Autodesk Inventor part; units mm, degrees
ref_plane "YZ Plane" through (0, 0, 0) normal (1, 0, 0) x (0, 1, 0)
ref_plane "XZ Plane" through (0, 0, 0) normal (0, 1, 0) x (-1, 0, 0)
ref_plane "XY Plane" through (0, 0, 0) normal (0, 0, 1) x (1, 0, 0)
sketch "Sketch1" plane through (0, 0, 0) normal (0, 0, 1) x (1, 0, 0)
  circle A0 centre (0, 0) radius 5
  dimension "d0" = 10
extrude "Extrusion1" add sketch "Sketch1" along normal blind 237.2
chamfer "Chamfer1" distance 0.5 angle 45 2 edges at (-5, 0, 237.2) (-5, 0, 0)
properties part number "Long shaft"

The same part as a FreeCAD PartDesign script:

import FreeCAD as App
import Part
import Sketcher


def edges_at(feature, points):
    """Names of the edges that pass closest to the given points."""
    edges = feature.Shape.Edges
    near = lambda p: min(range(len(edges)), key=lambda i: edges[i].distToShape(Part.Vertex(*p))[0])
    return sorted({f"Edge{near(p) + 1}" for p in points})

doc = App.newDocument("Part")
params = doc.addObject("Spreadsheet::Sheet", "Params")
for row, (alias, value) in enumerate([
    ("sketch1_diameter", "10 mm"),
    ("pad1_length", "237.2 mm"),
    ("chamfer_size", "0.5 mm"),
], start=1):
    params.set(f"A{row}", alias)
    params.set(f"B{row}", "=" + value)
    params.setAlias(f"B{row}", alias)

body = doc.addObject("PartDesign::Body", "Body")

sketch1 = body.newObject("Sketcher::SketchObject", "Sketch")
sketch1.AttachmentSupport = (doc.getObject("XY_Plane"), [""])
sketch1.MapMode = "FlatFace"
sketch1.addGeometry(Part.Circle(App.Vector(0, 0, 0), App.Vector(0, 0, 1), 5), False)
sketch1.addConstraint(Sketcher.Constraint("Coincident", 0, 3, -1, 1))
sketch1.addConstraint(Sketcher.Constraint("Diameter", 0, 10.0))
sketch1.setExpression("Constraints[1]", "Params.sketch1_diameter")
pad1 = body.newObject("PartDesign::Pad", "Pad")
pad1.Profile = sketch1
pad1.setExpression("Length", "Params.pad1_length")
doc.recompute()

chamfer = body.newObject("PartDesign::Chamfer", "Chamfer")
chamfer.Base = (pad1, edges_at(pad1, [(-5, 0, 237.2), (-5, 0, 0)]))
chamfer.setExpression("Size", "Params.chamfer_size")

doc.recompute()
